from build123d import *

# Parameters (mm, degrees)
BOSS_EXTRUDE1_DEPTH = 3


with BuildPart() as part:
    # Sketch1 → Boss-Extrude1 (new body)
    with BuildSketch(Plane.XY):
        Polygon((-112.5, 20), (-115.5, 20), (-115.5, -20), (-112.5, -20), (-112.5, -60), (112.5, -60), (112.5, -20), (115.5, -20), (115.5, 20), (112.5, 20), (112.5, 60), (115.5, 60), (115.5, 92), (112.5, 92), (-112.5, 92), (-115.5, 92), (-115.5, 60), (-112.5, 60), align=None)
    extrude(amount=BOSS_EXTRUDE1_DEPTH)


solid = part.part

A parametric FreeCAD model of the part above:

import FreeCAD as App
import Part
import Sketcher

V = App.Vector

doc = App.newDocument("Part")
body = doc.addObject("PartDesign::Body", "Body")

# Sketch on XY plane
sketch1 = body.newObject("Sketcher::SketchObject", "Sketch")
sketch1.AttachmentSupport = (doc.getObject("XY_Plane"), [""])
sketch1.MapMode = "FlatFace"
sketch1.addGeometry(Part.LineSegment(V(-112.5, 20, 0), V(-115.5, 20, 0)), False)
sketch1.addGeometry(Part.LineSegment(V(-115.5, 20, 0), V(-115.5, -20, 0)), False)
sketch1.addGeometry(Part.LineSegment(V(-115.5, -20, 0), V(-112.5, -20, 0)), False)
sketch1.addGeometry(Part.LineSegment(V(-112.5, -20, 0), V(-112.5, -60, 0)), False)
sketch1.addGeometry(Part.LineSegment(V(-112.5, -60, 0), V(112.5, -60, 0)), False)
sketch1.addGeometry(Part.LineSegment(V(112.5, -60, 0), V(112.5, -20, 0)), False)
sketch1.addGeometry(Part.LineSegment(V(112.5, -20, 0), V(115.5, -20, 0)), False)
sketch1.addGeometry(Part.LineSegment(V(115.5, -20, 0), V(115.5, 20, 0)), False)
sketch1.addGeometry(Part.LineSegment(V(115.5, 20, 0), V(112.5, 20, 0)), False)
sketch1.addGeometry(Part.LineSegment(V(112.5, 20, 0), V(112.5, 60, 0)), False)
sketch1.addGeometry(Part.LineSegment(V(112.5, 60, 0), V(115.5, 60, 0)), False)
sketch1.addGeometry(Part.LineSegment(V(115.5, 60, 0), V(115.5, 92, 0)), False)
sketch1.addGeometry(Part.LineSegment(V(115.5, 92, 0), V(-115.5, 92, 0)), False)
sketch1.addGeometry(Part.LineSegment(V(-115.5, 92, 0), V(-115.5, 60, 0)), False)
sketch1.addGeometry(Part.LineSegment(V(-115.5, 60, 0), V(-112.5, 60, 0)), False)
sketch1.addGeometry(Part.LineSegment(V(-112.5, 60, 0), V(-112.5, 20, 0)), False)
sketch1.addConstraint(Sketcher.Constraint("Coincident", 0, 2, 1, 1))
sketch1.addConstraint(Sketcher.Constraint("Coincident", 1, 2, 2, 1))
sketch1.addConstraint(Sketcher.Constraint("Coincident", 2, 2, 3, 1))
sketch1.addConstraint(Sketcher.Constraint("Coincident", 3, 2, 4, 1))
sketch1.addConstraint(Sketcher.Constraint("Coincident", 4, 2, 5, 1))
sketch1.addConstraint(Sketcher.Constraint("Coincident", 5, 2, 6, 1))
sketch1.addConstraint(Sketcher.Constraint("Coincident", 6, 2, 7, 1))
sketch1.addConstraint(Sketcher.Constraint("Coincident", 7, 2, 8, 1))
sketch1.addConstraint(Sketcher.Constraint("Coincident", 8, 2, 9, 1))
sketch1.addConstraint(Sketcher.Constraint("Coincident", 9, 2, 10, 1))
sketch1.addConstraint(Sketcher.Constraint("Coincident", 10, 2, 11, 1))
sketch1.addConstraint(Sketcher.Constraint("Coincident", 11, 2, 12, 1))
sketch1.addConstraint(Sketcher.Constraint("Coincident", 12, 2, 13, 1))
sketch1.addConstraint(Sketcher.Constraint("Coincident", 13, 2, 14, 1))
sketch1.addConstraint(Sketcher.Constraint("Coincident", 14, 2, 15, 1))
sketch1.addConstraint(Sketcher.Constraint("Coincident", 15, 2, 0, 1))
sketch1.addConstraint(Sketcher.Constraint("Horizontal", 0))
sketch1.addConstraint(Sketcher.Constraint("Vertical", 1))
sketch1.addConstraint(Sketcher.Constraint("Horizontal", 2))
sketch1.addConstraint(Sketcher.Constraint("Vertical", 3))
sketch1.addConstraint(Sketcher.Constraint("Horizontal", 4))
sketch1.addConstraint(Sketcher.Constraint("Vertical", 5))
sketch1.addConstraint(Sketcher.Constraint("Horizontal", 6))
sketch1.addConstraint(Sketcher.Constraint("Vertical", 7))
sketch1.addConstraint(Sketcher.Constraint("Horizontal", 8))
sketch1.addConstraint(Sketcher.Constraint("Vertical", 9))
sketch1.addConstraint(Sketcher.Constraint("Horizontal", 10))
sketch1.addConstraint(Sketcher.Constraint("Vertical", 11))
sketch1.addConstraint(Sketcher.Constraint("Horizontal", 12))
sketch1.addConstraint(Sketcher.Constraint("Vertical", 13))
sketch1.addConstraint(Sketcher.Constraint("Horizontal", 14))
sketch1.addConstraint(Sketcher.Constraint("Vertical", 15))
sketch1.addConstraint(Sketcher.Constraint("Symmetric", 0, 2, 6, 2, -1, 1))
sketch1.addConstraint(Sketcher.Constraint("Symmetric", 2, 2, 8, 2, -1, 1))
sketch1.addConstraint(Sketcher.Constraint("Symmetric", 4, 2, 14, 2, -1, 1))
sketch1.addConstraint(Sketcher.Constraint("Symmetric", 2, 2, 5, 2, -2))
sketch1.addConstraint(Sketcher.Constraint("Symmetric", 10, 2, 13, 2, -2))
sketch1.addConstraint(Sketcher.Constraint("Vertical", 7, 2, 10, 2))
sketch1.addConstraint(Sketcher.Constraint("Equal", 1, 3))
sketch1.addConstraint(Sketcher.Constraint("DistanceX", 0, 2, 0, 1, 3.0))
sketch1.addConstraint(Sketcher.Constraint("DistanceX", 4, 1, 4, 2, 225.0))
sketch1.addConstraint(Sketcher.Constraint("DistanceY", 1, 2, 1, 1, 40.0))
sketch1.addConstraint(Sketcher.Constraint("DistanceY", 11, 1, 11, 2, 32.0))
pad1 = body.newObject("PartDesign::Pad", "Pad")
pad1.Profile = sketch1
pad1.Length = 3

doc.recompute()
